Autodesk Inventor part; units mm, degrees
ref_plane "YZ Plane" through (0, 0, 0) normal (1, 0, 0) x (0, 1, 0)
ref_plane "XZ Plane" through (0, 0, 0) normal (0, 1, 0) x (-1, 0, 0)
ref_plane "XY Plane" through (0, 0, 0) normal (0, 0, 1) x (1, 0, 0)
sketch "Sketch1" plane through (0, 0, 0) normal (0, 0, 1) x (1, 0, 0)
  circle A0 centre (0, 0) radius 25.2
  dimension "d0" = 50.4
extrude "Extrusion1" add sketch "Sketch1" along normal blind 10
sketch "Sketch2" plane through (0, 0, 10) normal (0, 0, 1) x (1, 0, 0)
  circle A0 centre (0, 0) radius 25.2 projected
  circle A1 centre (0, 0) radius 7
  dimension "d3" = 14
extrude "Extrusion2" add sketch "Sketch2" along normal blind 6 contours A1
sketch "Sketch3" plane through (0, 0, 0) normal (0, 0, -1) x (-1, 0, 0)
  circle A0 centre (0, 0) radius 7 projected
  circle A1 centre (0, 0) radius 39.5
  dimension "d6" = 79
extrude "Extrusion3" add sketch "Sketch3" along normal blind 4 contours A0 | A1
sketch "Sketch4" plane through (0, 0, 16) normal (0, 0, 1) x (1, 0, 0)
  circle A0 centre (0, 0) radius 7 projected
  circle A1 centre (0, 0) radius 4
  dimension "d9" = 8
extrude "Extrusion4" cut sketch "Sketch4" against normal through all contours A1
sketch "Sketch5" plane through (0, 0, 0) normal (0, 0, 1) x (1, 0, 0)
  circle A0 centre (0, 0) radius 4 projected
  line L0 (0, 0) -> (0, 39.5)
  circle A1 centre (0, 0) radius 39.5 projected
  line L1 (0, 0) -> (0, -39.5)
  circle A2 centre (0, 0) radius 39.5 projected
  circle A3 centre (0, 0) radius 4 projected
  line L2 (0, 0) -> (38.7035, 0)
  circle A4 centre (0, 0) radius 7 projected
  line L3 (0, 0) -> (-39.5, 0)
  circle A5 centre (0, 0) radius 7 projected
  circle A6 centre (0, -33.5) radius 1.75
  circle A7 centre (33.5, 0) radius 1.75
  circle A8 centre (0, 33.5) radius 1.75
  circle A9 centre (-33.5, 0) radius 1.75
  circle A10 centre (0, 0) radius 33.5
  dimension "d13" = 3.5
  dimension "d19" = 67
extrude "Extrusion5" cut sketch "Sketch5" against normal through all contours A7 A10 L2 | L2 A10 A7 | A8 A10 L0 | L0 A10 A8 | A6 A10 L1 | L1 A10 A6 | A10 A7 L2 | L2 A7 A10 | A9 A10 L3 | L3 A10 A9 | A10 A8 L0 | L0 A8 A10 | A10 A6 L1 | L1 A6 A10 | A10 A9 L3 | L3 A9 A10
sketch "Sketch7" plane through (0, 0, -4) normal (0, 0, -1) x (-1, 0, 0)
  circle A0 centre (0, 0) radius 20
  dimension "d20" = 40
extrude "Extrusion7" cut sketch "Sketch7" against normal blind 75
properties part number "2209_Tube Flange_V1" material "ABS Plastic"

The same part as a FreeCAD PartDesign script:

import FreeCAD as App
import Part
import Sketcher

doc = App.newDocument("Part")
params = doc.addObject("Spreadsheet::Sheet", "Params")
for row, (alias, value) in enumerate([
    ("sketch1_diameter", "50.4 mm"),
    ("pad1_length", "10 mm"),
    ("sketch2_diameter", "14 mm"),
    ("pad2_length", "6 mm"),
    ("sketch3_diameter", "79 mm"),
    ("pad3_length", "4 mm"),
    ("sketch4_diameter", "8 mm"),
    ("sketch5_diameter", "3.5 mm"),
    ("sketch6_diameter", "40 mm"),
    ("pocket3_length", "75 mm"),
], start=1):
    params.set(f"A{row}", alias)
    params.set(f"B{row}", "=" + value)
    params.setAlias(f"B{row}", alias)

body = doc.addObject("PartDesign::Body", "Body")

# Sketch on XY plane
sketch1 = doc.addObject("Sketcher::SketchObject", "Sketch")
body.addObject(sketch1)
sketch1.AttachmentSupport = (doc.XY_Plane, [""])
sketch1.MapMode = "FlatFace"
sketch1.addGeometry(Part.Circle(App.Vector(0, 0, 0), App.Vector(0, 0, 1), 25.2), False)
sketch1.addConstraint([
    Sketcher.Constraint("Coincident", 0, 3, -1, 1),
    Sketcher.Constraint("Diameter", 0, 50.4),
])
sketch1.setExpression("Constraints[1]", "Params.sketch1_diameter")
pad1 = doc.addObject("PartDesign::Pad", "Pad")
body.addObject(pad1)
pad1.Profile = sketch1
pad1.setExpression("Length", "Params.pad1_length")

# Sketch on XY plane
sketch2 = doc.addObject("Sketcher::SketchObject", "Sketch001")
body.addObject(sketch2)
sketch2.AttachmentSupport = (doc.XY_Plane, [""])
sketch2.MapMode = "FlatFace"
sketch2.AttachmentOffset = App.Placement(App.Vector(0, 0, 10), App.Rotation())
sketch2.addGeometry(Part.Circle(App.Vector(0, 0, 0), App.Vector(0, 0, 1), 7), False)
sketch2.addConstraint([
    Sketcher.Constraint("Coincident", 0, 3, -1, 1),
    Sketcher.Constraint("Diameter", 0, 14.0),
])
sketch2.setExpression("Constraints[1]", "Params.sketch2_diameter")
pad2 = doc.addObject("PartDesign::Pad", "Pad001")
body.addObject(pad2)
pad2.Profile = sketch2
pad2.setExpression("Length", "Params.pad2_length")

# Sketch on XY plane
sketch3 = doc.addObject("Sketcher::SketchObject", "Sketch002")
body.addObject(sketch3)
sketch3.AttachmentSupport = (doc.XY_Plane, [""])
sketch3.MapMode = "FlatFace"
sketch3.addGeometry(Part.Circle(App.Vector(0, 0, 0), App.Vector(0, 0, 1), 39.5), False)
sketch3.addConstraint([
    Sketcher.Constraint("Coincident", 0, 3, -1, 1),
    Sketcher.Constraint("Diameter", 0, 79.0),
])
sketch3.setExpression("Constraints[1]", "Params.sketch3_diameter")
pad3 = doc.addObject("PartDesign::Pad", "Pad002")
body.addObject(pad3)
pad3.Profile = sketch3
pad3.setExpression("Length", "Params.pad3_length")
pad3.Reversed = True

# Sketch on XY plane
sketch4 = doc.addObject("Sketcher::SketchObject", "Sketch003")
body.addObject(sketch4)
sketch4.AttachmentSupport = (doc.XY_Plane, [""])
sketch4.MapMode = "FlatFace"
sketch4.AttachmentOffset = App.Placement(App.Vector(0, 0, 16), App.Rotation())
sketch4.addGeometry(Part.Circle(App.Vector(0, 0, 0), App.Vector(0, 0, 1), 4), False)
sketch4.addConstraint([
    Sketcher.Constraint("Coincident", 0, 3, -1, 1),
    Sketcher.Constraint("Diameter", 0, 8.0),
])
sketch4.setExpression("Constraints[1]", "Params.sketch4_diameter")
pocket1 = doc.addObject("PartDesign::Pocket", "Pocket")
body.addObject(pocket1)
pocket1.Profile = sketch4
pocket1.Type = "ThroughAll"

# Sketch on XY plane
sketch5 = doc.addObject("Sketcher::SketchObject", "Sketch004")
body.addObject(sketch5)
sketch5.AttachmentSupport = (doc.XY_Plane, [""])
sketch5.MapMode = "FlatFace"
sketch5.addGeometry([
    Part.Circle(App.Vector(33.5, 0, 0), App.Vector(0, 0, 1), 1.75),
    Part.Circle(App.Vector(0, 33.5, 0), App.Vector(0, 0, 1), 1.75),
    Part.Circle(App.Vector(0, -33.5, 0), App.Vector(0, 0, 1), 1.75),
    Part.Circle(App.Vector(-33.5, 0, 0), App.Vector(0, 0, 1), 1.75),
], False)
sketch5.addConstraint([
    Sketcher.Constraint("Equal", 0, 1),
    Sketcher.Constraint("Equal", 1, 2),
    Sketcher.Constraint("Equal", 2, 3),
    Sketcher.Constraint("Symmetric", 1, 3, 2, 3, -1, 1),
    Sketcher.Constraint("Symmetric", 0, 3, 3, 3, -1, 1),
    Sketcher.Constraint("PointOnObject", 0, 3, -1),
    Sketcher.Constraint("PointOnObject", 1, 3, -2),
    Sketcher.Constraint("Diameter", 0, 3.5),
    Sketcher.Constraint("DistanceY", 2, 3, 1, 3, 67.0),
    Sketcher.Constraint("DistanceX", 3, 3, 0, 3, 67.0),
])
sketch5.setExpression("Constraints[7]", "Params.sketch5_diameter")
pocket2 = doc.addObject("PartDesign::Pocket", "Pocket001")
body.addObject(pocket2)
pocket2.Profile = sketch5
pocket2.Type = "ThroughAll"

# Sketch on XY plane
sketch6 = doc.addObject("Sketcher::SketchObject", "Sketch005")
body.addObject(sketch6)
sketch6.AttachmentSupport = (doc.XY_Plane, [""])
sketch6.MapMode = "FlatFace"
sketch6.AttachmentOffset = App.Placement(App.Vector(0, 0, -4), App.Rotation())
sketch6.addGeometry(Part.Circle(App.Vector(0, 0, 0), App.Vector(0, 0, 1), 20), False)
sketch6.addConstraint([
    Sketcher.Constraint("Coincident", 0, 3, -1, 1),
    Sketcher.Constraint("Diameter", 0, 40.0),
])
sketch6.setExpression("Constraints[1]", "Params.sketch6_diameter")
pocket3 = doc.addObject("PartDesign::Pocket", "Pocket002")
body.addObject(pocket3)
pocket3.Profile = sketch6
pocket3.setExpression("Length", "Params.pocket3_length")
pocket3.Reversed = True

doc.recompute()
